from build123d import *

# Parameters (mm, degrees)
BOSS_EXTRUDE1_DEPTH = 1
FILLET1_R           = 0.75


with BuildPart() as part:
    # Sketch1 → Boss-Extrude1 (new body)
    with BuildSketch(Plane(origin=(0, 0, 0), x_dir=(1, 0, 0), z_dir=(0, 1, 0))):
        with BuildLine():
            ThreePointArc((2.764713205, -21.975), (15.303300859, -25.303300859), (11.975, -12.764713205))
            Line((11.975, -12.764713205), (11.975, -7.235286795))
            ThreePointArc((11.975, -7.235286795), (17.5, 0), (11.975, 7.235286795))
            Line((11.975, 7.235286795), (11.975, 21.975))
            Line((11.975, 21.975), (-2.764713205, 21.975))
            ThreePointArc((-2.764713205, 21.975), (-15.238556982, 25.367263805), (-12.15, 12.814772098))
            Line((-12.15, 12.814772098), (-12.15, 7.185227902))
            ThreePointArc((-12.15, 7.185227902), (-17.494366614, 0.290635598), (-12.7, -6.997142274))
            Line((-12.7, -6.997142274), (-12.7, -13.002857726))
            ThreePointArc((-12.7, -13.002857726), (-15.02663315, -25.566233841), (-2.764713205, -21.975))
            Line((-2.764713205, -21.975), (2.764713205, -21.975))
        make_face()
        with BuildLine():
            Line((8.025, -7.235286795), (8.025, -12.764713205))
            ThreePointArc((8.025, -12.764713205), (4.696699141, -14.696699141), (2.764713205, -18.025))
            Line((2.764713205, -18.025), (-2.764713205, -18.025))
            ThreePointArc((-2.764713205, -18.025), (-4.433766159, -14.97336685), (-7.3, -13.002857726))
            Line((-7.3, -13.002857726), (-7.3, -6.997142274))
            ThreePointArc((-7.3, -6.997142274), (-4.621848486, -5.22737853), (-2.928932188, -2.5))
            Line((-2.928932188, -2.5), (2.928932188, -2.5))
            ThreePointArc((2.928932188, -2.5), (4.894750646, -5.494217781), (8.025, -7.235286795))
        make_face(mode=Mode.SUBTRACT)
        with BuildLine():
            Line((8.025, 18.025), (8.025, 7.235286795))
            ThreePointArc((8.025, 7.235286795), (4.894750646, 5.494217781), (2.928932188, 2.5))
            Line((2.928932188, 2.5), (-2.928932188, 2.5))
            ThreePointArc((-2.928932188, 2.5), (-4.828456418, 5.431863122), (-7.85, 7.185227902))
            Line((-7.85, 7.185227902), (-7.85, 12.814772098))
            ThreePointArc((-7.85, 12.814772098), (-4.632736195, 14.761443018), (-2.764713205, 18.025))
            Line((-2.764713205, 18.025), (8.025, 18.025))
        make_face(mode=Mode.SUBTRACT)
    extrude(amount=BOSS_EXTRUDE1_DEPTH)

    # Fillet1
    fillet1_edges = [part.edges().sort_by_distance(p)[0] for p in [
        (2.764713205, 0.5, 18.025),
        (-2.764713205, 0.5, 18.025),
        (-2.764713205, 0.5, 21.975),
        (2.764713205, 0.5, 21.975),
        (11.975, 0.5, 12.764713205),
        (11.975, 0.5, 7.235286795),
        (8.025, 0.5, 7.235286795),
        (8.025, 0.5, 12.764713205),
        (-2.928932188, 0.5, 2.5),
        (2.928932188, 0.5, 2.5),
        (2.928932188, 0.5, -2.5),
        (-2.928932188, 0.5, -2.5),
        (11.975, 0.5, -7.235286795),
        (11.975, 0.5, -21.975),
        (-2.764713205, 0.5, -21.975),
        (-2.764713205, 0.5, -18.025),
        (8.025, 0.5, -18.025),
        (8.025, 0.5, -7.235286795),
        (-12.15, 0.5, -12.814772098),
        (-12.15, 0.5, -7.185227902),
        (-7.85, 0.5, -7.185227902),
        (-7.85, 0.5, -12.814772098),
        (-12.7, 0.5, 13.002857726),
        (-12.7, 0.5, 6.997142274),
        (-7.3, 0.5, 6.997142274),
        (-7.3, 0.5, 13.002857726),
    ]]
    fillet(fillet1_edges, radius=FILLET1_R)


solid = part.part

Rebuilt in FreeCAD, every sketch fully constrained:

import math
import FreeCAD as App
import Part
import Sketcher


def edges_at(feature, points):
    """Names of the edges that pass closest to the given points."""
    edges = feature.Shape.Edges
    near = lambda p: min(range(len(edges)), key=lambda i: edges[i].distToShape(Part.Vertex(*p))[0])
    return sorted({f"Edge{near(p) + 1}" for p in points})

doc = App.newDocument("Part")
body = doc.addObject("PartDesign::Body", "Body")

sketch1 = body.newObject("Sketcher::SketchObject", "Sketch")
sketch1.AttachmentSupport = (doc.getObject("XZ_Plane"), [""])
sketch1.MapMode = "FlatFace"
sketch1.addGeometry([
    Part.ArcOfCircle(Part.Circle(App.Vector(10, 20, 0), App.Vector(0, 0, 1), 8), math.radians(-75), math.radians(165)),
    Part.LineSegment(App.Vector(12, 13, 0), App.Vector(12, 7, 0)),
    Part.ArcOfCircle(Part.Circle(App.Vector(10, 0, 0), App.Vector(0, 0, 1), 8), math.radians(-75), math.radians(75)),
    Part.LineSegment(App.Vector(12, -7, 0), App.Vector(12, -22, 0)),
    Part.LineSegment(App.Vector(12, -22, 0), App.Vector(-3, -22, 0)),
    Part.ArcOfCircle(Part.Circle(App.Vector(-10, -20, 0), App.Vector(0, 0, 1), 8), math.radians(107), math.radians(345)),
    Part.LineSegment(App.Vector(-12, -13, 0), App.Vector(-12, -7, 0)),
    Part.ArcOfCircle(Part.Circle(App.Vector(-10, 0, 0), App.Vector(0, 0, 1), 8), math.radians(111), math.radians(253)),
    Part.LineSegment(App.Vector(-13, 7, 0), App.Vector(-13, 13, 0)),
    Part.ArcOfCircle(Part.Circle(App.Vector(-10, 20, 0), App.Vector(0, 0, 1), 8), math.radians(15), math.radians(249)),
    Part.LineSegment(App.Vector(-3, 22, 0), App.Vector(3, 22, 0)),
    Part.ArcOfCircle(Part.Circle(App.Vector(10, 0, 0), App.Vector(0, 0, 1), 8), math.radians(105), math.radians(161)),
    Part.LineSegment(App.Vector(8, 7, 0), App.Vector(8, 13, 0)),
    Part.ArcOfCircle(Part.Circle(App.Vector(10, 20, 0), App.Vector(0, 0, 1), 8), math.radians(-165), math.radians(-105)),
    Part.LineSegment(App.Vector(3, 18, 0), App.Vector(-3, 18, 0)),
    Part.ArcOfCircle(Part.Circle(App.Vector(-10, 20, 0), App.Vector(0, 0, 1), 8), math.radians(-69), math.radians(-15)),
    Part.LineSegment(App.Vector(-7, 13, 0), App.Vector(-7, 7, 0)),
    Part.ArcOfCircle(Part.Circle(App.Vector(-10, 0, 0), App.Vector(0, 0, 1), 7), math.radians(19), math.radians(69)),
    Part.LineSegment(App.Vector(-3, 2, 0), App.Vector(3, 2, 0)),
    Part.LineSegment(App.Vector(-3, -18, 0), App.Vector(8, -18, 0)),
    Part.LineSegment(App.Vector(8, -18, 0), App.Vector(8, -7, 0)),
    Part.ArcOfCircle(Part.Circle(App.Vector(10, 0, 0), App.Vector(0, 0, 1), 8), math.radians(-161), math.radians(-105)),
    Part.LineSegment(App.Vector(3, -2, 0), App.Vector(-3, -2, 0)),
    Part.ArcOfCircle(Part.Circle(App.Vector(-10, 0, 0), App.Vector(0, 0, 1), 8), math.radians(-73), math.radians(-19)),
    Part.LineSegment(App.Vector(-8, -7, 0), App.Vector(-8, -13, 0)),
    Part.ArcOfCircle(Part.Circle(App.Vector(-10, -20, 0), App.Vector(0, 0, 1), 8), math.radians(15), math.radians(73)),
], False)
sketch1.addConstraint([
    Sketcher.Constraint("Coincident", 0, 1, 1, 1),
    Sketcher.Constraint("Coincident", 1, 2, 2, 2),
    Sketcher.Constraint("Coincident", 2, 1, 3, 1),
    Sketcher.Constraint("Coincident", 3, 2, 4, 1),
    Sketcher.Constraint("Coincident", 4, 2, 5, 2),
    Sketcher.Constraint("Coincident", 5, 1, 6, 1),
    Sketcher.Constraint("Coincident", 6, 2, 7, 2),
    Sketcher.Constraint("Coincident", 7, 1, 8, 1),
    Sketcher.Constraint("Coincident", 8, 2, 9, 2),
    Sketcher.Constraint("Coincident", 9, 1, 10, 1),
    Sketcher.Constraint("Coincident", 10, 2, 0, 2),
    Sketcher.Constraint("Coincident", 11, 1, 12, 1),
    Sketcher.Constraint("Coincident", 12, 2, 13, 2),
    Sketcher.Constraint("Coincident", 13, 1, 14, 1),
    Sketcher.Constraint("Coincident", 14, 2, 15, 2),
    Sketcher.Constraint("Coincident", 15, 1, 16, 1),
    Sketcher.Constraint("Coincident", 16, 2, 17, 2),
    Sketcher.Constraint("Coincident", 17, 1, 18, 1),
    Sketcher.Constraint("Coincident", 18, 2, 11, 2),
    Sketcher.Constraint("Coincident", 19, 2, 20, 1),
    Sketcher.Constraint("Coincident", 20, 2, 21, 2),
    Sketcher.Constraint("Coincident", 21, 1, 22, 1),
    Sketcher.Constraint("Coincident", 22, 2, 23, 2),
    Sketcher.Constraint("Coincident", 23, 1, 24, 1),
    Sketcher.Constraint("Coincident", 24, 2, 25, 2),
    Sketcher.Constraint("Coincident", 25, 1, 19, 1),
    Sketcher.Constraint("Vertical", 1),
    Sketcher.Constraint("Vertical", 3),
    Sketcher.Constraint("Horizontal", 4),
    Sketcher.Constraint("Vertical", 6),
    Sketcher.Constraint("Vertical", 8),
    Sketcher.Constraint("Horizontal", 10),
    Sketcher.Constraint("Vertical", 12),
    Sketcher.Constraint("Horizontal", 14),
    Sketcher.Constraint("Vertical", 16),
    Sketcher.Constraint("Horizontal", 18),
    Sketcher.Constraint("Horizontal", 19),
    Sketcher.Constraint("Vertical", 20),
    Sketcher.Constraint("Horizontal", 22),
    Sketcher.Constraint("Vertical", 24),
    Sketcher.Constraint("Coincident", 11, 3, 2, 3),
    Sketcher.Constraint("Coincident", 13, 3, 0, 3),
    Sketcher.Constraint("Coincident", 15, 3, 9, 3),
    Sketcher.Constraint("Coincident", 17, 3, 7, 3),
    Sketcher.Constraint("Coincident", 21, 3, 2, 3),
    Sketcher.Constraint("Coincident", 23, 3, 7, 3),
    Sketcher.Constraint("Coincident", 25, 3, 5, 3),
    Sketcher.Constraint("Equal", 0, 2),
    Sketcher.Constraint("Equal", 2, 5),
    Sketcher.Constraint("Equal", 5, 7),
    Sketcher.Constraint("Equal", 7, 9),
    Sketcher.Constraint("Equal", 9, 11),
    Sketcher.Constraint("Equal", 11, 13),
    Sketcher.Constraint("Equal", 13, 15),
    Sketcher.Constraint("Equal", 15, 17),
    Sketcher.Constraint("Equal", 17, 21),
    Sketcher.Constraint("Equal", 21, 23),
    Sketcher.Constraint("Equal", 23, 25),
    Sketcher.Constraint("Symmetric", 0, 3, 5, 3, -1, 1),
    Sketcher.Constraint("Symmetric", 2, 3, 7, 3, -1, 1),
    Sketcher.Constraint("Symmetric", 0, 3, 9, 3, -2),
    Sketcher.Constraint("Symmetric", 1, 2, 2, 1, -1),
    Sketcher.Constraint("Horizontal", 1, 2, 11, 1),
    Sketcher.Constraint("Horizontal", 0, 1, 12, 2),
    Sketcher.Constraint("Horizontal", 8, 2, 15, 1),
    Sketcher.Constraint("Horizontal", 2, 1, 20, 2),
    Sketcher.Constraint("Horizontal", 6, 2, 23, 1),
    Sketcher.Constraint("Vertical", 4, 2, 9, 1),
    Sketcher.Constraint("Vertical", 10, 2, 13, 1),
    Sketcher.Constraint("Vertical", 18, 2, 21, 1),
    Sketcher.Constraint("Vertical", 14, 2, 25, 1),
    Sketcher.Constraint("Equal", 14, 1),
    Sketcher.Constraint("Equal", 4, 3),
    Sketcher.Constraint("Radius", 0, 7.5),
    Sketcher.Constraint("DistanceX", -1, 1, 0, 3, 10.0),
    Sketcher.Constraint("DistanceY", 21, 1, 18, 2, 5.0),
    Sketcher.Constraint("DistanceX", 7, 1, -1, 1, 12.7),
    Sketcher.Constraint("DistanceX", 6, 2, 23, 1, 4.3),
    Sketcher.Constraint("DistanceX", 11, 1, 1, 2, 3.95),
])
pad1 = body.newObject("PartDesign::Pad", "Pad")
pad1.Profile = sketch1
pad1.Length = 1
pad1.Reversed = True
doc.recompute()

fillet = body.newObject("PartDesign::Fillet", "Fillet")
fillet.Base = (pad1, edges_at(pad1, [
    (2.765, 0.5, 18.025),
    (-2.765, 0.5, 18.025),
    (-2.765, 0.5, 21.975),
    (2.765, 0.5, 21.975),
    (11.975, 0.5, 12.765),
    (11.975, 0.5, 7.235),
    (8.025, 0.5, 7.235),
    (8.025, 0.5, 12.765),
    (-2.929, 0.5, 2.5),
    (2.929, 0.5, 2.5),
    (2.929, 0.5, -2.5),
    (-2.929, 0.5, -2.5),
    (11.975, 0.5, -7.235),
    (11.975, 0.5, -21.975),
    (-2.765, 0.5, -21.975),
    (-2.765, 0.5, -18.025),
    (8.025, 0.5, -18.025),
    (8.025, 0.5, -7.235),
    (-12.15, 0.5, -12.815),
    (-12.15, 0.5, -7.185),
    (-7.85, 0.5, -7.185),
    (-7.85, 0.5, -12.815),
    (-12.7, 0.5, 13.003),
    (-12.7, 0.5, 6.997),
    (-7.3, 0.5, 6.997),
    (-7.3, 0.5, 13.003),
]))
fillet.Radius = 0.75

doc.recompute()
